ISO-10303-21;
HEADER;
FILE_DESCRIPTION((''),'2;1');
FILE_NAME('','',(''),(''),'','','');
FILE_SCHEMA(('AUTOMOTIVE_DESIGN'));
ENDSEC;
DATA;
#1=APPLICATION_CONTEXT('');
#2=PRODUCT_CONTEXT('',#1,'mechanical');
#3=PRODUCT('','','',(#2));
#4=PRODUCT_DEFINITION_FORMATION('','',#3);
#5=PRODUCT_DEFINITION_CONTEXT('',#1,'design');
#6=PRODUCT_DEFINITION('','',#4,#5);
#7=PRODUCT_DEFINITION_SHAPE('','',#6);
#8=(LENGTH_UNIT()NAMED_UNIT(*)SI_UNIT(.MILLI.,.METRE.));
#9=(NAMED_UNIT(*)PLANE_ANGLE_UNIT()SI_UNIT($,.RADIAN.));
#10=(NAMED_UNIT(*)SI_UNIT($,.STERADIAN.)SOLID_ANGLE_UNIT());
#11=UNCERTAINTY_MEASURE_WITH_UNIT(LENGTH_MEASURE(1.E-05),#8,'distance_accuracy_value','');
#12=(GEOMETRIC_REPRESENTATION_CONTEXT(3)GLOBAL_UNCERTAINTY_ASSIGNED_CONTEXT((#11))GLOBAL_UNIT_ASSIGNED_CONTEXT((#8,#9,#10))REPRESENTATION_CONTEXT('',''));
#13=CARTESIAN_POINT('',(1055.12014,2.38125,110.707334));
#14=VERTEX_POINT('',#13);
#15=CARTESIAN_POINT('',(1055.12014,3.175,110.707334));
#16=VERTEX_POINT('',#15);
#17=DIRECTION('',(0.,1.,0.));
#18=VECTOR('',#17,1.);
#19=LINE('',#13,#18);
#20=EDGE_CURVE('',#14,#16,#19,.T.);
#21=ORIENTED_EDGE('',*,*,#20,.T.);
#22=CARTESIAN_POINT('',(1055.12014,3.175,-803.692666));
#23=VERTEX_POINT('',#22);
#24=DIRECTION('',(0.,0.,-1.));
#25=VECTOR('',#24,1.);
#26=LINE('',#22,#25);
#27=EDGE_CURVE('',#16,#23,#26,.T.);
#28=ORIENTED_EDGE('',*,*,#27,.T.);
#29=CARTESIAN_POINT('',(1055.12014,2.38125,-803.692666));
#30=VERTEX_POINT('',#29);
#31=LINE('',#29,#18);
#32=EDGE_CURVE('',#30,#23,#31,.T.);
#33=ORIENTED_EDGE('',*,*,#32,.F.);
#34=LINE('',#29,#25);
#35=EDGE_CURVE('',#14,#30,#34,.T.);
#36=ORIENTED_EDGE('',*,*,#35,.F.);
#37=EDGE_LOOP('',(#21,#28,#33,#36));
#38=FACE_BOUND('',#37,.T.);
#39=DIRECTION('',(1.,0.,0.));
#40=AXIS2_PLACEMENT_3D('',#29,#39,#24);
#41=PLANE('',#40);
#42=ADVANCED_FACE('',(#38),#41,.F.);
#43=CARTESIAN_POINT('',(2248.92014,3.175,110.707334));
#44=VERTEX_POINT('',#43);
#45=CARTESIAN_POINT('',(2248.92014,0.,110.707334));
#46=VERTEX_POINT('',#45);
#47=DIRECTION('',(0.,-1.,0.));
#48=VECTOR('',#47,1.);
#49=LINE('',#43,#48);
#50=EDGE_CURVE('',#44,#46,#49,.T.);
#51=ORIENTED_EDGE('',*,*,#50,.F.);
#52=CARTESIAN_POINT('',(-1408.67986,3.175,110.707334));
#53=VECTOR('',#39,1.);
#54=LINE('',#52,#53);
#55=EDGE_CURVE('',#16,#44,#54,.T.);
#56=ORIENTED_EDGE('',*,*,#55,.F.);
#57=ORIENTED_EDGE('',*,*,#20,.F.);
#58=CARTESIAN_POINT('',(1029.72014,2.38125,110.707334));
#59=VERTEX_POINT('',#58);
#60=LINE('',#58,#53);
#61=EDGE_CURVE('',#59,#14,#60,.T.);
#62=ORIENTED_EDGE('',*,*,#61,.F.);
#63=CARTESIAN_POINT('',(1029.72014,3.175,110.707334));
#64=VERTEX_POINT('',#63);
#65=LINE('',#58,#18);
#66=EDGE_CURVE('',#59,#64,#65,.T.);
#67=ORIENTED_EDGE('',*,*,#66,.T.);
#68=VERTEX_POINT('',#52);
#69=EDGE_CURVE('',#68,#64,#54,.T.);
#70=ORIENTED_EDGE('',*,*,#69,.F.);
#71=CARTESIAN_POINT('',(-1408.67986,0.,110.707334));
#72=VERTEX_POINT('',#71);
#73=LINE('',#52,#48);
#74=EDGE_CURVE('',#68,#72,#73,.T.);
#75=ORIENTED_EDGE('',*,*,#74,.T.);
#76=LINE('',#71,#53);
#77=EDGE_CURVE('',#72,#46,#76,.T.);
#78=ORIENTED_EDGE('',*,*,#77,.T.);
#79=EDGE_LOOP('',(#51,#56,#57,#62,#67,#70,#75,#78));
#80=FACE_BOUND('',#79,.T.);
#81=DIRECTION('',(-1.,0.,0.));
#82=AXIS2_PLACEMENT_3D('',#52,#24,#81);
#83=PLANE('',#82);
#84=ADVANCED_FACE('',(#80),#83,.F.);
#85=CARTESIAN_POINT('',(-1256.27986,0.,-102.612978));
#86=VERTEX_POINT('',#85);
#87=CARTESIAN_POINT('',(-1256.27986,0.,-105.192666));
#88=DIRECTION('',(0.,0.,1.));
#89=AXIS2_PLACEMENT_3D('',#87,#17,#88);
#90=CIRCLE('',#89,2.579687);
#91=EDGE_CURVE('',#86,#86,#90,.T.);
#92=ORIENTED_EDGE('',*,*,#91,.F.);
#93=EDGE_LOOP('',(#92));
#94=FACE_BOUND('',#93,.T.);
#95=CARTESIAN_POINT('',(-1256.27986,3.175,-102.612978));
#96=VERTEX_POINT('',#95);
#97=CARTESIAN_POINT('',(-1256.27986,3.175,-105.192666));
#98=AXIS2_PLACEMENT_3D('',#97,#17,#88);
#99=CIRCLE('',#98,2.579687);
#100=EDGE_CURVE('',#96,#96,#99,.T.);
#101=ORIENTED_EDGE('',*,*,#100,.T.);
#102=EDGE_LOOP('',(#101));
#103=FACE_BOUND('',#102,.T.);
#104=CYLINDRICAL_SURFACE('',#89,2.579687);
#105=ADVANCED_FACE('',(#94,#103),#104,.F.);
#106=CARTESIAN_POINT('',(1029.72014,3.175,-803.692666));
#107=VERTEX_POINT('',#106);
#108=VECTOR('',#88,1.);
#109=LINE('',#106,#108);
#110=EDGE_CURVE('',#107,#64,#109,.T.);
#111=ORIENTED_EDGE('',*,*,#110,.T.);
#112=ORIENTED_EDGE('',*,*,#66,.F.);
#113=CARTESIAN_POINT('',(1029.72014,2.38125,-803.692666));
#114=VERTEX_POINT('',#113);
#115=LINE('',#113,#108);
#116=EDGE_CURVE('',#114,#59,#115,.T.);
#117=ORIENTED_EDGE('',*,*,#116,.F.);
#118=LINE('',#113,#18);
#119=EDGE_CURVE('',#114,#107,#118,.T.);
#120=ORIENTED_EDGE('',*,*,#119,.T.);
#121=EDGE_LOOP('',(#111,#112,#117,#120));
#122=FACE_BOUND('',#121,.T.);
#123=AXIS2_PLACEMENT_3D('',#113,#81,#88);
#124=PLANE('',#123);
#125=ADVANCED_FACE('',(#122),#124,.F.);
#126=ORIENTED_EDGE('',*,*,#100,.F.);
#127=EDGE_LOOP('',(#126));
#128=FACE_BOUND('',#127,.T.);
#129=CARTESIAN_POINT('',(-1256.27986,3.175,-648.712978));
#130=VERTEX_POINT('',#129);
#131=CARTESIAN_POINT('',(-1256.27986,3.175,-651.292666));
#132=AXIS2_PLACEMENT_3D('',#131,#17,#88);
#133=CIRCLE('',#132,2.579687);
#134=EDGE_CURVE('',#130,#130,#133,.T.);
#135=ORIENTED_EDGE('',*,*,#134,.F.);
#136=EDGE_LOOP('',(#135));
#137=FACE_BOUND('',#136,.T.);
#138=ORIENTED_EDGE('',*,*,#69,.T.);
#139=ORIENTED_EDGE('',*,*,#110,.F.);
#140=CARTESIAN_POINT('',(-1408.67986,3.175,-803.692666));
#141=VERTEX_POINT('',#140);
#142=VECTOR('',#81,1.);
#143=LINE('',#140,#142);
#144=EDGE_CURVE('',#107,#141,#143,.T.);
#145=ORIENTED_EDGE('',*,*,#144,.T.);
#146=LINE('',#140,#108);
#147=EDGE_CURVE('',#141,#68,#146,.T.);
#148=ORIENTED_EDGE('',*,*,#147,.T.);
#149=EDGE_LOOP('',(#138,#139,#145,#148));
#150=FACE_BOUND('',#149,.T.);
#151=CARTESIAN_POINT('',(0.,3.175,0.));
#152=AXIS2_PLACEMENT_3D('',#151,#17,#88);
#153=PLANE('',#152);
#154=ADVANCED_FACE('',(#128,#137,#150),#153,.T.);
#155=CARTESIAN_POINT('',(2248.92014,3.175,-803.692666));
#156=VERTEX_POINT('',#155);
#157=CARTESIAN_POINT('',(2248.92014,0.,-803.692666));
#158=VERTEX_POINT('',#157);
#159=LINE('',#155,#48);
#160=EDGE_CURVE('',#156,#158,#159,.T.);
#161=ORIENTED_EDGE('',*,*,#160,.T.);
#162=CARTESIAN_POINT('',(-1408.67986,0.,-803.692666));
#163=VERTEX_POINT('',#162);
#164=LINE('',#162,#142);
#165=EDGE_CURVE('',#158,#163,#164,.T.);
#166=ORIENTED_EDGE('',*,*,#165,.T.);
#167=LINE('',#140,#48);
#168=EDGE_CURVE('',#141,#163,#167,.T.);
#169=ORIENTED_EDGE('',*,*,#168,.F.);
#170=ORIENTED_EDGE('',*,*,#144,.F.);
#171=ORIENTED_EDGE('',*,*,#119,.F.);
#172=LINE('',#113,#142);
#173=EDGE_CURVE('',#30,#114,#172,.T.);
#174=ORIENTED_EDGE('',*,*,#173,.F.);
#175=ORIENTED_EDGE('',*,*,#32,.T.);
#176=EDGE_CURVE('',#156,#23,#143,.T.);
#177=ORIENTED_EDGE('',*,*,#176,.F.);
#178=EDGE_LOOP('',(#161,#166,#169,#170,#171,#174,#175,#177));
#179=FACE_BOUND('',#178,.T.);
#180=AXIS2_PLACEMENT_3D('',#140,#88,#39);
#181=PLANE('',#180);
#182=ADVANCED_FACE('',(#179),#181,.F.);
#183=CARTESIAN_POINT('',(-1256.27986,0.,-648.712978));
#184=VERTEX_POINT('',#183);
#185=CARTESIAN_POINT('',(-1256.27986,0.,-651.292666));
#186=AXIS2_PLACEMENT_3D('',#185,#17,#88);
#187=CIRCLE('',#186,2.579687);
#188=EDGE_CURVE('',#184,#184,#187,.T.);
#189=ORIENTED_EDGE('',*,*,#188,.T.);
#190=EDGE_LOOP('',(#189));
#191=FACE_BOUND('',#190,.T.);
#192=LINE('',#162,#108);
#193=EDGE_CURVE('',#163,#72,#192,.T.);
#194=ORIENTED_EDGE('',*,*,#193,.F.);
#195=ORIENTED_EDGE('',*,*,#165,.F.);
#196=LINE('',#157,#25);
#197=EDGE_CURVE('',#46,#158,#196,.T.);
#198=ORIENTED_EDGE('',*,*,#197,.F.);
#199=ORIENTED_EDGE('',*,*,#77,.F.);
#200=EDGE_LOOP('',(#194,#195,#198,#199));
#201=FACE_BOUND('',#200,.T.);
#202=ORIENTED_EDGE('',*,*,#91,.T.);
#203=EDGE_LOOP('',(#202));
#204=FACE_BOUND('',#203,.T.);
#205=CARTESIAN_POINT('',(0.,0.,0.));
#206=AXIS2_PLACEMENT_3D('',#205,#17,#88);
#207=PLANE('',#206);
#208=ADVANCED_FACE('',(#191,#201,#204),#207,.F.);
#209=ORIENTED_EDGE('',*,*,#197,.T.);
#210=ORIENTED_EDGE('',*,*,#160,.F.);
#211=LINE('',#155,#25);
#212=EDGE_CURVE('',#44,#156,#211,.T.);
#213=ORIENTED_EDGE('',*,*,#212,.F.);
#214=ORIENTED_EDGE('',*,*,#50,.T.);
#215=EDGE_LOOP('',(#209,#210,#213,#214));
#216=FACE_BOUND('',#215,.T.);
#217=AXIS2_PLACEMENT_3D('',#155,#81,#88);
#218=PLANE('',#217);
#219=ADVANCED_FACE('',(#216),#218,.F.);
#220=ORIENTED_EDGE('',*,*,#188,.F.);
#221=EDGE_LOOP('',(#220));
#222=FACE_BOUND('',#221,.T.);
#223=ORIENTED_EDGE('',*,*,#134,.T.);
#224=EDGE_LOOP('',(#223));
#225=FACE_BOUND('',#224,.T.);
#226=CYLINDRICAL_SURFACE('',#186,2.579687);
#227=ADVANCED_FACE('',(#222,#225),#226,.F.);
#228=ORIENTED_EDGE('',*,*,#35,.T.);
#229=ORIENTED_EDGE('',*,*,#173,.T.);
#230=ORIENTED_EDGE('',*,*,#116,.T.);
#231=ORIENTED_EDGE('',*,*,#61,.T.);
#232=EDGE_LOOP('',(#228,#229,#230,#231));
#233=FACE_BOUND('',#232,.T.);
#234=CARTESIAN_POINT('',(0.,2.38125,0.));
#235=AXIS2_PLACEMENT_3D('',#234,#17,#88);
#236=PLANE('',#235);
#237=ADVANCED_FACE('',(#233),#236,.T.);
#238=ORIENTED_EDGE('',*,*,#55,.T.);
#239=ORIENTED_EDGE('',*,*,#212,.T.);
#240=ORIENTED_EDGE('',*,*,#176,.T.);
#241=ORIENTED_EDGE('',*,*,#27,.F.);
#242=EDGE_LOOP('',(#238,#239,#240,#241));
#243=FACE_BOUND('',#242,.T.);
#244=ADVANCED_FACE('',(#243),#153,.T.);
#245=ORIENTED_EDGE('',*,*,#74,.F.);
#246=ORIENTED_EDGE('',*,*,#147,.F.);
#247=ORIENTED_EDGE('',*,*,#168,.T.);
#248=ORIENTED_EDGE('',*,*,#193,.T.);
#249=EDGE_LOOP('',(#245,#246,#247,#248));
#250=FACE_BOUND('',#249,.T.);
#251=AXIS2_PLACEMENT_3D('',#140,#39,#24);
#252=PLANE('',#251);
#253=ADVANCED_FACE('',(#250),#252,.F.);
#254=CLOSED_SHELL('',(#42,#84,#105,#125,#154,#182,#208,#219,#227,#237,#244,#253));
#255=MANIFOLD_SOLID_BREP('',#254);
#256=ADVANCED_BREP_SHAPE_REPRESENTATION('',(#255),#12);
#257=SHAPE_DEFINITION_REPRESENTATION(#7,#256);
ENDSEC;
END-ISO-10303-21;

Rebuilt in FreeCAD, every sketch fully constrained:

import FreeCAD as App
import Part
import Sketcher
from FreeCAD import Vector
Q = App.Units.Quantity


def add_polygon(sketch, points):
    """Adds a closed chain of lines whose ends are joined by coincident constraints."""
    first, n = sketch.GeometryCount, len(points)
    for a, b in zip(points, points[1:] + points[:1]):
        sketch.addGeometry(Part.LineSegment(App.Vector(*a, 0), App.Vector(*b, 0)), False)
    for i in range(n):
        sketch.addConstraint(Sketcher.Constraint("Coincident", first + i, 2, first + (i + 1) % n, 1))

doc = App.newDocument("Part")
body = doc.addObject("PartDesign::Body", "Body")

# Sketch on XZ plane
sketch1 = body.newObject("Sketcher::SketchObject", "Sketch")
sketch1.AttachmentSupport = (doc.getObject("XZ_Plane"), [""])
sketch1.MapMode = "FlatFace"
add_polygon(sketch1, [(-1409, -804), (-1409, 111), (2249, 111), (2249, -804)])  # lines 0-3
sketch1.addConstraint(Sketcher.Constraint("Vertical", 0))
sketch1.addConstraint(Sketcher.Constraint("Horizontal", 1))
sketch1.addConstraint(Sketcher.Constraint("Vertical", 2))
sketch1.addConstraint(Sketcher.Constraint("Horizontal", 3))
sketch1.addConstraint(Sketcher.Constraint("DistanceX", 1, 1, 1, 2, Q("144 in")))
sketch1.addConstraint(Sketcher.Constraint("DistanceY", 0, 1, 0, 2, Q("36 in")))
sketch1.addConstraint(Sketcher.Constraint("DistanceX", 0, 2, -1, 1, 1408.67986))
sketch1.addConstraint(Sketcher.Constraint("DistanceY", -1, 1, 0, 2, 110.707334))
pad1 = body.newObject("PartDesign::Pad", "Pad")
pad1.Profile = sketch1
pad1.Length = Q("0.125 in")
pad1.Reversed = True

# Sketch on XZ plane
sketch2 = body.newObject("Sketcher::SketchObject", "Sketch001")
sketch2.AttachmentSupport = (doc.getObject("XZ_Plane"), [""])
sketch2.MapMode = "FlatFace"
sketch2.AttachmentOffset = App.Placement(Vector(0, 0, -0.125 * 25.4), App.Rotation())
sketch2.addGeometry(Part.Circle(Vector(-1256.3, -651.3, 0), Vector(0, 0, 1), 2.6), False)
sketch2.addGeometry(Part.Circle(Vector(-1256.3, -105.2, 0), Vector(0, 0, 1), 2.6), False)
sketch2.addConstraint(Sketcher.Constraint("Equal", 0, 1))
sketch2.addConstraint(Sketcher.Constraint("Vertical", 0, 3, 1, 3))
sketch2.addConstraint(Sketcher.Constraint("Diameter", 0, Q("0.203125 in")))
sketch2.addConstraint(Sketcher.Constraint("DistanceY", 0, 3, 1, 3, Q("21.5 in")))
sketch2.addConstraint(Sketcher.Constraint("DistanceX", 0, 3, -1, 1, 1256.27986))
sketch2.addConstraint(Sketcher.Constraint("DistanceY", 0, 3, -1, 1, 651.292666))
pocket1 = body.newObject("PartDesign::Pocket", "Pocket")
pocket1.Profile = sketch2
pocket1.Length = Q("0.125 in")
pocket1.Reversed = True

# Sketch on XZ plane
sketch3 = body.newObject("Sketcher::SketchObject", "Sketch002")
sketch3.AttachmentSupport = (doc.getObject("XZ_Plane"), [""])
sketch3.MapMode = "FlatFace"
sketch3.AttachmentOffset = App.Placement(Vector(0, 0, -0.125 * 25.4), App.Rotation())
add_polygon(sketch3, [(1030, -804), (1030, 111), (1055, 111), (1055, -804)])  # lines 0-3
sketch3.addConstraint(Sketcher.Constraint("Vertical", 0))
sketch3.addConstraint(Sketcher.Constraint("Horizontal", 1))
sketch3.addConstraint(Sketcher.Constraint("Vertical", 2))
sketch3.addConstraint(Sketcher.Constraint("Horizontal", 3))
sketch3.addConstraint(Sketcher.Constraint("DistanceX", 1, 1, 1, 2, Q("1 in")))
sketch3.addConstraint(Sketcher.Constraint("DistanceY", 0, 1, 0, 2, Q("36 in")))
sketch3.addConstraint(Sketcher.Constraint("DistanceX", -1, 1, 0, 2, 1029.72014))
sketch3.addConstraint(Sketcher.Constraint("DistanceY", -1, 1, 0, 2, 110.707334))
pocket2 = body.newObject("PartDesign::Pocket", "Pocket001")
pocket2.Profile = sketch3
pocket2.Length = Q("0.03125 in")
pocket2.Reversed = True

doc.recompute()
